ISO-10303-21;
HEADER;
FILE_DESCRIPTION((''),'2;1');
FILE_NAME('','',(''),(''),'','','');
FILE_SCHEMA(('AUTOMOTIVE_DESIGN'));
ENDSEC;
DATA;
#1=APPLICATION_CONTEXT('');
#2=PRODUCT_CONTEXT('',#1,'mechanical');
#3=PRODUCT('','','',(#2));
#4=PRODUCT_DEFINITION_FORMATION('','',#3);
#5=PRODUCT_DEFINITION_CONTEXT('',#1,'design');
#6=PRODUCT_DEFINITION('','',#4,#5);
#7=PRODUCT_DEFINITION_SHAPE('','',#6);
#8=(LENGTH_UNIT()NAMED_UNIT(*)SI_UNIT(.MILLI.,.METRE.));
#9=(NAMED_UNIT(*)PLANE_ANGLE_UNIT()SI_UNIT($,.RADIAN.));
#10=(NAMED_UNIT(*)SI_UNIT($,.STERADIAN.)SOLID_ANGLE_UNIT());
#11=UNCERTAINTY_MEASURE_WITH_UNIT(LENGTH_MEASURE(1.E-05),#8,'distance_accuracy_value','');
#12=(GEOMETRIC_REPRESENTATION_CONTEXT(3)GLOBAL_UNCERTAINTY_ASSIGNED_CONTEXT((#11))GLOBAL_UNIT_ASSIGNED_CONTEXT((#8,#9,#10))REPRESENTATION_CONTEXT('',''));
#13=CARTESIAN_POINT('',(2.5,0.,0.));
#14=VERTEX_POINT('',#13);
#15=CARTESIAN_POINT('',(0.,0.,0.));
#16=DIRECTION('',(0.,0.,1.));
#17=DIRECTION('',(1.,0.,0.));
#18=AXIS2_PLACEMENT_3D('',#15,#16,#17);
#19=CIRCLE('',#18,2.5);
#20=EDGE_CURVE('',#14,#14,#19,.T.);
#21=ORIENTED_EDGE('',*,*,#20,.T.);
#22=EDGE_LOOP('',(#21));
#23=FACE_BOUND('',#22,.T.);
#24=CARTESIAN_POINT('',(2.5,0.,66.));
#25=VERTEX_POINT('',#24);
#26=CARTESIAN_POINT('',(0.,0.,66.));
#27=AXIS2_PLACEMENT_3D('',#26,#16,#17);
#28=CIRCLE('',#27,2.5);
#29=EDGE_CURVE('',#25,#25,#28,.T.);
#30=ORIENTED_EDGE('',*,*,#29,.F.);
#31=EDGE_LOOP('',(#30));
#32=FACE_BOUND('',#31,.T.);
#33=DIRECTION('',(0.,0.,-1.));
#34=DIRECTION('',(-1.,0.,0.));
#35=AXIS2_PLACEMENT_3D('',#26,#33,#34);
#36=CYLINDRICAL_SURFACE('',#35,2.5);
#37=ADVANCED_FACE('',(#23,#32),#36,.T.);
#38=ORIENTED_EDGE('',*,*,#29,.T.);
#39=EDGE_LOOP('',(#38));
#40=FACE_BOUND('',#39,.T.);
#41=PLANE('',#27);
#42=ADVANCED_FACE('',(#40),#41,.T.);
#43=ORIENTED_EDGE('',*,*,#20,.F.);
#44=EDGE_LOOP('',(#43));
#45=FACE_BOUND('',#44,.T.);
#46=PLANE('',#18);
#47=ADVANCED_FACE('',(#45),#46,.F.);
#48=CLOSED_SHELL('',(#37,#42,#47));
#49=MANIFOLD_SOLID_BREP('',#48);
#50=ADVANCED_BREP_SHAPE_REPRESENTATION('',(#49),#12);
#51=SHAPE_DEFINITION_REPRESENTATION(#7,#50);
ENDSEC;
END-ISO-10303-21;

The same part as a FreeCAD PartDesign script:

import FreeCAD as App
import Part
import Sketcher
from FreeCAD import Vector
Q = App.Units.Quantity

doc = App.newDocument("Part")
body = doc.addObject("PartDesign::Body", "Body")

# Sketch on XY plane
sketch1 = body.newObject("Sketcher::SketchObject", "Sketch")
sketch1.AttachmentSupport = (doc.getObject("XY_Plane"), [""])
sketch1.MapMode = "FlatFace"
sketch1.addGeometry(Part.Circle(Vector(0, 0, 0), Vector(0, 0, 1), 2.5), False)
sketch1.addConstraint(Sketcher.Constraint("Coincident", 0, 3, -1, 1))
sketch1.addConstraint(Sketcher.Constraint("Diameter", 0, Q("5 mm")))
pad1 = body.newObject("PartDesign::Pad", "Pad")
pad1.Profile = sketch1
pad1.Length = 66

doc.recompute()
